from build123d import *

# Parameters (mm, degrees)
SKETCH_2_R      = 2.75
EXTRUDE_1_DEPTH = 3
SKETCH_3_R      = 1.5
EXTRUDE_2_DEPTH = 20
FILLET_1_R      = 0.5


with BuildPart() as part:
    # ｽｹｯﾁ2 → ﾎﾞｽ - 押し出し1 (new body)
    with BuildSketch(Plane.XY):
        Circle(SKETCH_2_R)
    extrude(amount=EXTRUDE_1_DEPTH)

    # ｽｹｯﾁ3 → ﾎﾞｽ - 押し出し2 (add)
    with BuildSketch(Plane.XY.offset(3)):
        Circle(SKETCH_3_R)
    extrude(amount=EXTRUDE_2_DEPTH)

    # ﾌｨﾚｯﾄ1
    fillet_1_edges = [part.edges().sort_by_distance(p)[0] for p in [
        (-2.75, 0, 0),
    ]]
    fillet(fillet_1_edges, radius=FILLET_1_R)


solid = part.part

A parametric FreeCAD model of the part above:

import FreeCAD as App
import Part
import Sketcher

V = App.Vector
Q = App.Units.Quantity


def edges_at(feature, points):
    """Names of the edges that pass closest to the given points."""
    edges = feature.Shape.Edges
    near = lambda p: min(range(len(edges)), key=lambda i: edges[i].distToShape(Part.Vertex(*p))[0])
    return sorted({f"Edge{near(p) + 1}" for p in points})

doc = App.newDocument("Part")
body = doc.addObject("PartDesign::Body", "Body")

sketch1 = body.newObject("Sketcher::SketchObject", "Sketch")
sketch1.AttachmentSupport = (doc.getObject("XY_Plane"), [""])
sketch1.MapMode = "FlatFace"
sketch1.addGeometry(Part.Circle(V(0, 0, 0), V(0, 0, 1), 2.8), False)
sketch1.addConstraint([
    Sketcher.Constraint("Coincident", 0, 3, -1, 1),
    Sketcher.Constraint("Diameter", 0, Q("5.5 mm")),
])
pad1 = body.newObject("PartDesign::Pad", "Pad")
pad1.Profile = sketch1
pad1.Length = 3

sketch2 = body.newObject("Sketcher::SketchObject", "Sketch001")
sketch2.AttachmentSupport = (doc.getObject("XY_Plane"), [""])
sketch2.MapMode = "FlatFace"
sketch2.AttachmentOffset = App.Placement(V(0, 0, 3), App.Rotation())
sketch2.addGeometry(Part.Circle(V(0, 0, 0), V(0, 0, 1), 1.5), False)
sketch2.addConstraint([
    Sketcher.Constraint("Coincident", 0, 3, -1, 1),
    Sketcher.Constraint("Diameter", 0, Q("3 mm")),
])
pad2 = body.newObject("PartDesign::Pad", "Pad001")
pad2.Profile = sketch2
pad2.Length = 20
doc.recompute()

fillet = body.newObject("PartDesign::Fillet", "Fillet")
fillet.Base = (pad2, edges_at(pad2, [(-2.75, 0, 0)]))
fillet.Radius = 0.5

doc.recompute()
